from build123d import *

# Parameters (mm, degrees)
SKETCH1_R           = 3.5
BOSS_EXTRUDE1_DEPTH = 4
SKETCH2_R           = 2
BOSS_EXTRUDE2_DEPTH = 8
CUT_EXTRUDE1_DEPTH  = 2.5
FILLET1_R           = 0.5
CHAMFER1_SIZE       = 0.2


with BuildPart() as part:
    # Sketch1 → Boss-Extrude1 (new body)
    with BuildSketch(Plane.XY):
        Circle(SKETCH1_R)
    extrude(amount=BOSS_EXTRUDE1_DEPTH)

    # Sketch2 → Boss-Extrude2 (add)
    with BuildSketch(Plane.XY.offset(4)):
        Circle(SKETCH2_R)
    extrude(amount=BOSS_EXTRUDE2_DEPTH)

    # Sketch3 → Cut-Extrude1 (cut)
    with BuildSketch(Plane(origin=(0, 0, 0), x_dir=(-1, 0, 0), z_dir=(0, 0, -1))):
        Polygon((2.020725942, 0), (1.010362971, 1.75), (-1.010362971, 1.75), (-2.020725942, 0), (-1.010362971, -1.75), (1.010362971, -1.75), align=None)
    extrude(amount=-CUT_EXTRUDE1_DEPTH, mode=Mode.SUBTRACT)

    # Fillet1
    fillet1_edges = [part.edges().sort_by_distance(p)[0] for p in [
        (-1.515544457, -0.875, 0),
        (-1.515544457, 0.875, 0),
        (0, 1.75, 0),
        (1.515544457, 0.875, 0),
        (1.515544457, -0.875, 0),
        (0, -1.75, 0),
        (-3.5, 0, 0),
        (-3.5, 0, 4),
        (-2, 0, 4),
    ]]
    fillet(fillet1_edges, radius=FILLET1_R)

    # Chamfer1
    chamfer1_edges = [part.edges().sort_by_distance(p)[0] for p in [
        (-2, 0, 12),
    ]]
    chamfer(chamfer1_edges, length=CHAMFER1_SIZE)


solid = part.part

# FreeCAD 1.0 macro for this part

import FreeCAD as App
import Part
import Sketcher

V = App.Vector
Q = App.Units.Quantity


def edges_at(feature, points):
    """Names of the edges that pass closest to the given points."""
    edges = feature.Shape.Edges
    near = lambda p: min(range(len(edges)), key=lambda i: edges[i].distToShape(Part.Vertex(*p))[0])
    return sorted({f"Edge{near(p) + 1}" for p in points})


def add_polygon(sketch, points):
    """Adds a closed chain of lines whose ends are joined by coincident constraints."""
    first, n = sketch.GeometryCount, len(points)
    for a, b in zip(points, points[1:] + points[:1]):
        sketch.addGeometry(Part.LineSegment(App.Vector(*a, 0), App.Vector(*b, 0)), False)
    for i in range(n):
        sketch.addConstraint(Sketcher.Constraint("Coincident", first + i, 2, first + (i + 1) % n, 1))

doc = App.newDocument("Part")
body = doc.addObject("PartDesign::Body", "Body")

sketch1 = body.newObject("Sketcher::SketchObject", "Sketch")
sketch1.AttachmentSupport = (doc.getObject("XY_Plane"), [""])
sketch1.MapMode = "FlatFace"
sketch1.addGeometry(Part.Circle(V(0, 0, 0), V(0, 0, 1), 3.5), False)
sketch1.addConstraint(Sketcher.Constraint("Coincident", 0, 3, -1, 1))
sketch1.addConstraint(Sketcher.Constraint("Diameter", 0, Q("7 mm")))
pad1 = body.newObject("PartDesign::Pad", "Pad")
pad1.Profile = sketch1
pad1.Length = 4

sketch2 = body.newObject("Sketcher::SketchObject", "Sketch001")
sketch2.AttachmentSupport = (doc.getObject("XY_Plane"), [""])
sketch2.MapMode = "FlatFace"
sketch2.AttachmentOffset = App.Placement(V(0, 0, 4), App.Rotation())
sketch2.addGeometry(Part.Circle(V(0, 0, 0), V(0, 0, 1), 2), False)
sketch2.addConstraint(Sketcher.Constraint("Coincident", 0, 3, -1, 1))
sketch2.addConstraint(Sketcher.Constraint("Diameter", 0, Q("4 mm")))
pad2 = body.newObject("PartDesign::Pad", "Pad001")
pad2.Profile = sketch2
pad2.Length = 8

sketch3 = body.newObject("Sketcher::SketchObject", "Sketch002")
sketch3.AttachmentSupport = (doc.getObject("XY_Plane"), [""])
sketch3.MapMode = "FlatFace"
add_polygon(sketch3, [(-2, 0), (-1, 1.8), (1, 1.8), (2, 0), (1, -1.8), (-1, -1.8)])
sketch3.addConstraint(Sketcher.Constraint("Horizontal", 1))
sketch3.addConstraint(Sketcher.Constraint("Horizontal", 4))
sketch3.addConstraint(Sketcher.Constraint("Symmetric", 0, 2, 3, 2, -1, 1))
sketch3.addConstraint(Sketcher.Constraint("Symmetric", 2, 2, 5, 2, -1, 1))
sketch3.addConstraint(Sketcher.Constraint("PointOnObject", 2, 2, -1))
sketch3.addConstraint(Sketcher.Constraint("Parallel", 2, 5))
sketch3.addConstraint(Sketcher.Constraint("Vertical", 1, 2, 3, 2))
sketch3.addConstraint(Sketcher.Constraint("Angle", 0, Q("60 deg")))
sketch3.addConstraint(Sketcher.Constraint("DistanceY", 3, 2, 1, 2, Q("3.5 mm")))
sketch3.addConstraint(Sketcher.Constraint("DistanceX", 1, 1, 1, 2, Q("2.020726 mm")))
pocket1 = body.newObject("PartDesign::Pocket", "Pocket")
pocket1.Profile = sketch3
pocket1.Length = 2.5
pocket1.Reversed = True
doc.recompute()

fillet = body.newObject("PartDesign::Fillet", "Fillet")
fillet.Base = (pocket1, edges_at(pocket1, [
    (-1.516, -0.875, 0),
    (-1.516, 0.875, 0),
    (0, 1.75, 0),
    (1.516, 0.875, 0),
    (1.516, -0.875, 0),
    (0, -1.75, 0),
    (-3.5, 0, 0),
    (-3.5, 0, 4),
    (-2, 0, 4),
]))
fillet.Radius = 0.5
doc.recompute()

chamfer = body.newObject("PartDesign::Chamfer", "Chamfer")
chamfer.Base = (fillet, edges_at(fillet, [(-2, 0, 12)]))
chamfer.Size = 0.2

doc.recompute()
